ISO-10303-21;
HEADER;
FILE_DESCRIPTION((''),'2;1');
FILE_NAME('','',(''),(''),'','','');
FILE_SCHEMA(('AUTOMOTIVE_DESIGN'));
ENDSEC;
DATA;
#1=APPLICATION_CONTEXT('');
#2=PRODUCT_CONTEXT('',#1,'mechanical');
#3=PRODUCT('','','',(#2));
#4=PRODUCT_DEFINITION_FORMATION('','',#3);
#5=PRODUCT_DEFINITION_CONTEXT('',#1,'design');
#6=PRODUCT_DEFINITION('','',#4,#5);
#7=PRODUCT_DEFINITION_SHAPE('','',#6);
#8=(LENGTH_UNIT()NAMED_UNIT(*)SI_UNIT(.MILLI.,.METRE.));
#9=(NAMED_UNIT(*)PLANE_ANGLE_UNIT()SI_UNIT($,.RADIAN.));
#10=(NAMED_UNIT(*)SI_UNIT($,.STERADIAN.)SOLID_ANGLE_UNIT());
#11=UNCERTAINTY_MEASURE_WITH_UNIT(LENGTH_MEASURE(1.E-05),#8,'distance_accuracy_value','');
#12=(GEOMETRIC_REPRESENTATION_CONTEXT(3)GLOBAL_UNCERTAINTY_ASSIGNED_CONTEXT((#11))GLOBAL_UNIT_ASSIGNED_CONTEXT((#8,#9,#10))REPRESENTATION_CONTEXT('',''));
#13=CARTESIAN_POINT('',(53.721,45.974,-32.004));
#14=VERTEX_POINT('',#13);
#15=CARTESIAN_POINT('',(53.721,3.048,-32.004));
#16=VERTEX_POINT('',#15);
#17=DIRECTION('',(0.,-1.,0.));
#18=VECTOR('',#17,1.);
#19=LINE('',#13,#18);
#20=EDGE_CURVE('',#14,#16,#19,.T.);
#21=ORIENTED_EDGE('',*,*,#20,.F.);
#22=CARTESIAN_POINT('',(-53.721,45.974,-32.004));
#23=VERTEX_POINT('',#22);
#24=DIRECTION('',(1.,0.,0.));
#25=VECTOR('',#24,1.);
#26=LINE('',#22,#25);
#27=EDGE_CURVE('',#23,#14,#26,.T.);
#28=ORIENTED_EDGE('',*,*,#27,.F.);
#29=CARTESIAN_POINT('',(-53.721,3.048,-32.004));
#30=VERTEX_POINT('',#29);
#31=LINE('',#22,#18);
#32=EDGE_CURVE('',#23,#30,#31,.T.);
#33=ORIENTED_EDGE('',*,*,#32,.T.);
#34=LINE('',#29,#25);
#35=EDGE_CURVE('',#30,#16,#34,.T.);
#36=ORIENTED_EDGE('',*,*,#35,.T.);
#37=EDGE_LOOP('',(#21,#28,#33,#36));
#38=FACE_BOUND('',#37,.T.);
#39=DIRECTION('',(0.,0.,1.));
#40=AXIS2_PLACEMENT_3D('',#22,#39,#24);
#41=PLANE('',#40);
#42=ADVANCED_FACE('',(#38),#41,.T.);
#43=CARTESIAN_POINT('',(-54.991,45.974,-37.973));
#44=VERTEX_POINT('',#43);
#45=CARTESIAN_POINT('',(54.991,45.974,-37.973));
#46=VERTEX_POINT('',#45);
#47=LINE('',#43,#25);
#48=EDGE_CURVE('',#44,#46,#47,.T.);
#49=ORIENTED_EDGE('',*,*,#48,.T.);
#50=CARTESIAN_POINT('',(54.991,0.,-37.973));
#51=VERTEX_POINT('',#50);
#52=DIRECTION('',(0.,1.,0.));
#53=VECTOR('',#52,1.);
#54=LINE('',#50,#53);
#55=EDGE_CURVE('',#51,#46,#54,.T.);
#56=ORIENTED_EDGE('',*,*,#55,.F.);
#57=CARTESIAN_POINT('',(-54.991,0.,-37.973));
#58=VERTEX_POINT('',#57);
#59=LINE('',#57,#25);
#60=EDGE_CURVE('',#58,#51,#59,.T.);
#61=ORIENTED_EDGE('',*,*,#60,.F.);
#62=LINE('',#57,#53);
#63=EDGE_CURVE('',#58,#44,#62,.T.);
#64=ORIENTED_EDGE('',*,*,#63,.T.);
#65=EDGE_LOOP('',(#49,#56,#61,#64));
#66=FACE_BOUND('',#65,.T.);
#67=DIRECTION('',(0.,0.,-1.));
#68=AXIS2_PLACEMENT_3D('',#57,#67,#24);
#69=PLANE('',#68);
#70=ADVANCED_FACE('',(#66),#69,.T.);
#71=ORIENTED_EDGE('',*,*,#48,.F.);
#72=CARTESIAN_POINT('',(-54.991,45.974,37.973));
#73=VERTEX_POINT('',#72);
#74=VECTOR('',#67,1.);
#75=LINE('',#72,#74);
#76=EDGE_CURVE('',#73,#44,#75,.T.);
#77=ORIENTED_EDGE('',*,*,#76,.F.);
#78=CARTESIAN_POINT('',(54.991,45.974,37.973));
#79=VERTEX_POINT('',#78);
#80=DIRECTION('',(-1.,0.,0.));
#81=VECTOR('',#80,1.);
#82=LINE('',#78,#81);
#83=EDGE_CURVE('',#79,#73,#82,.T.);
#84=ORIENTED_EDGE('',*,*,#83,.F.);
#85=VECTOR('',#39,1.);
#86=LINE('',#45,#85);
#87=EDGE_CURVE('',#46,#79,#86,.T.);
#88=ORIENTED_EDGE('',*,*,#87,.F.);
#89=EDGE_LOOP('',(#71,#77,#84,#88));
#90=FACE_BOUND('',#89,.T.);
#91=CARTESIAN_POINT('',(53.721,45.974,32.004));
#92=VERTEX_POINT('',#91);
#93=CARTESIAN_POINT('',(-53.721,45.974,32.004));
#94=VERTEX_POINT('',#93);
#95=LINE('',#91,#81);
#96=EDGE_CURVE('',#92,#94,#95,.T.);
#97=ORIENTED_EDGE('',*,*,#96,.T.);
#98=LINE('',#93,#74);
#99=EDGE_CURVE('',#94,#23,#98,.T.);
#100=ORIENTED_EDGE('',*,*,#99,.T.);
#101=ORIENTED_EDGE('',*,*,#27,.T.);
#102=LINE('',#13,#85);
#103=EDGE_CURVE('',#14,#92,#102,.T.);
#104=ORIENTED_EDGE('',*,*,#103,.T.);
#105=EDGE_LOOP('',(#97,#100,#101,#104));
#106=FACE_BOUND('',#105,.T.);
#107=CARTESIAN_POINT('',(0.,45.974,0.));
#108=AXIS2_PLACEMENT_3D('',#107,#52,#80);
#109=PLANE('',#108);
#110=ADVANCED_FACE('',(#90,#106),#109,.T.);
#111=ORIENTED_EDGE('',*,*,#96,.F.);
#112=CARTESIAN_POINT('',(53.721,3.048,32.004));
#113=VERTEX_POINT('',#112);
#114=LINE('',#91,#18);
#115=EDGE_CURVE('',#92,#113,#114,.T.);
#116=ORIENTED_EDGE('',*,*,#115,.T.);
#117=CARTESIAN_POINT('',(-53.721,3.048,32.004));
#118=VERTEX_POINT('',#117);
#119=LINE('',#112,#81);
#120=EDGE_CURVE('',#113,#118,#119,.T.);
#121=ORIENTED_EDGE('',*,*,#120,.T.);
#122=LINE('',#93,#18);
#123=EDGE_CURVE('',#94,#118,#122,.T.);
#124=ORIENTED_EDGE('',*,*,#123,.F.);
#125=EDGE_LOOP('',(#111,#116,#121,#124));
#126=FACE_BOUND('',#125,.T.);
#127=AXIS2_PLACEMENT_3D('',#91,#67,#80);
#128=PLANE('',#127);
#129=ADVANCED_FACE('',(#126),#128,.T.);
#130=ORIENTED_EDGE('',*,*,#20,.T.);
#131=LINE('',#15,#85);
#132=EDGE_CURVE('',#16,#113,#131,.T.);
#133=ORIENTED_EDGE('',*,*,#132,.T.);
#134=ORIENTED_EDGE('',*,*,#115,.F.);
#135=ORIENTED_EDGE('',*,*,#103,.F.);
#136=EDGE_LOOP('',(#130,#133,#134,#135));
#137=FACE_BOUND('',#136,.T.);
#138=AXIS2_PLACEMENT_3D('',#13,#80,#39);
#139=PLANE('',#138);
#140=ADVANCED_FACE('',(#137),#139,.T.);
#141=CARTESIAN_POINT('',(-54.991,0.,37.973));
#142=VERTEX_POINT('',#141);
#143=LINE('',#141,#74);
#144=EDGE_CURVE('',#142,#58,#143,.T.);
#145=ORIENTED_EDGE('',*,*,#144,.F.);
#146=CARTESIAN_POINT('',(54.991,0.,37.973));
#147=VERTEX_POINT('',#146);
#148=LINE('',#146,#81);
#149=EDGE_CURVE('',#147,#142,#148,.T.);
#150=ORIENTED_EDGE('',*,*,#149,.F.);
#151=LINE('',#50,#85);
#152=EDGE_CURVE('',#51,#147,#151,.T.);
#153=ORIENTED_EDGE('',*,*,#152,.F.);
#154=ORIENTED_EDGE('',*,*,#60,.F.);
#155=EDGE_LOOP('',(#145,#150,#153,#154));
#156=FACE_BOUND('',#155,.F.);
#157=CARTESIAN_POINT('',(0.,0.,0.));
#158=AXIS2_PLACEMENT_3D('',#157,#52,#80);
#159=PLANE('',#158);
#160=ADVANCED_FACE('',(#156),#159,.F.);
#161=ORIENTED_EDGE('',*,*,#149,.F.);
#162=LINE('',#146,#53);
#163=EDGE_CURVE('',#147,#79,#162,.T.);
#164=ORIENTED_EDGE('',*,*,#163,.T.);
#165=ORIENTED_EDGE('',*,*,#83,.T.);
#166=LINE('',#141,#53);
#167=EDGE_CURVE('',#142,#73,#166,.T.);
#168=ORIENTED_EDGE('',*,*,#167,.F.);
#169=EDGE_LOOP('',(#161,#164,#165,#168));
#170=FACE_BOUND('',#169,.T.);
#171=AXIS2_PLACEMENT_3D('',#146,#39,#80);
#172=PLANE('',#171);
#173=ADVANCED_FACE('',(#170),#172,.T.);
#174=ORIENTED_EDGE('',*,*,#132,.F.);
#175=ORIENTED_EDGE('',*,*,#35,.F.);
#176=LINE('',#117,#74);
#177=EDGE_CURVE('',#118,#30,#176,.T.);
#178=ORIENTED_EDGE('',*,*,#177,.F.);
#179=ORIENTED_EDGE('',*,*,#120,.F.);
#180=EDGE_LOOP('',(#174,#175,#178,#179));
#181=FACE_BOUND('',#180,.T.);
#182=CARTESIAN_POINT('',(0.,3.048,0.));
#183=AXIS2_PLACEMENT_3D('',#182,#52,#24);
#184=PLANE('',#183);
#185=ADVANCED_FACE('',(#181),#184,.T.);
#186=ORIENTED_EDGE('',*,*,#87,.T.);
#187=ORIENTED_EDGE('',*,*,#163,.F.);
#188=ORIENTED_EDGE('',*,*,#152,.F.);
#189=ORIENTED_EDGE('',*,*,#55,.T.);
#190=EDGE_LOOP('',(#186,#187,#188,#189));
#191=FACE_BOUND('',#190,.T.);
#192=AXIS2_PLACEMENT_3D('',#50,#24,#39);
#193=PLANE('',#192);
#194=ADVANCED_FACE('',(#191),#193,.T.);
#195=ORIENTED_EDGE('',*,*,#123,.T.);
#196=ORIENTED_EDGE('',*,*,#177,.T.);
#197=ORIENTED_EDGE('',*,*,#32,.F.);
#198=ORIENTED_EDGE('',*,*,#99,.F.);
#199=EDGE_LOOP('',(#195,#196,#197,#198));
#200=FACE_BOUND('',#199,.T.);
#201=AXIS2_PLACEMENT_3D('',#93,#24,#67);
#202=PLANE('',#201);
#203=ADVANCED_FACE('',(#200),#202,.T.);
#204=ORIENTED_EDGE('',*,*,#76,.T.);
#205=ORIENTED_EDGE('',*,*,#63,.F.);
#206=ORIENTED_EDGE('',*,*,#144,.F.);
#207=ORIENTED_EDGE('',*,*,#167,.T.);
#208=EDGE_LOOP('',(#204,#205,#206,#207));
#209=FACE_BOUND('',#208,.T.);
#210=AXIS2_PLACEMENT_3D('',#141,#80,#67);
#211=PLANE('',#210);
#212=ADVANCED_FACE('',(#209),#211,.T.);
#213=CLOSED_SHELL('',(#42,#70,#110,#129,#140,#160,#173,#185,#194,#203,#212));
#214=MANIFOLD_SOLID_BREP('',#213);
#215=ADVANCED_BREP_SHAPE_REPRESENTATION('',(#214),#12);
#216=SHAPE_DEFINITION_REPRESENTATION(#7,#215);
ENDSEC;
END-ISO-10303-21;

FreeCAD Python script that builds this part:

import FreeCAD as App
import Part
import Sketcher
Q = App.Units.Quantity


def add_polygon(sketch, points):
    """Adds a closed chain of lines whose ends are joined by coincident constraints."""
    first, n = sketch.GeometryCount, len(points)
    for a, b in zip(points, points[1:] + points[:1]):
        sketch.addGeometry(Part.LineSegment(App.Vector(*a, 0), App.Vector(*b, 0)), False)
    for i in range(n):
        sketch.addConstraint(Sketcher.Constraint("Coincident", first + i, 2, first + (i + 1) % n, 1))

doc = App.newDocument("Part")
body = doc.addObject("PartDesign::Body", "Body")

sketch1 = body.newObject("Sketcher::SketchObject", "Sketch")
sketch1.AttachmentSupport = (doc.getObject("XZ_Plane"), [""])
sketch1.MapMode = "FlatFace"
add_polygon(sketch1, [(-55, 38), (55, 38), (55, -38), (-55, -38)])
sketch1.addConstraint(Sketcher.Constraint("Horizontal", 0))
sketch1.addConstraint(Sketcher.Constraint("Vertical", 1))
sketch1.addConstraint(Sketcher.Constraint("Horizontal", 2))
sketch1.addConstraint(Sketcher.Constraint("Vertical", 3))
sketch1.addConstraint(Sketcher.Constraint("Symmetric", 0, 2, 2, 2, -1, 1))
sketch1.addConstraint(Sketcher.Constraint("DistanceX", 0, 1, 0, 2, Q("4.33 in")))
sketch1.addConstraint(Sketcher.Constraint("DistanceY", 1, 2, 1, 1, Q("2.99 in")))
pad1 = body.newObject("PartDesign::Pad", "Pad")
pad1.Profile = sketch1
pad1.Length = Q("1.81 in")
pad1.Reversed = True

sketch2 = body.newObject("Sketcher::SketchObject", "Sketch001")
sketch2.AttachmentSupport = (doc.getObject("XZ_Plane"), [""])
sketch2.MapMode = "FlatFace"
sketch2.AttachmentOffset = App.Placement(App.Vector(0, 0, -1.81 * 25.4), App.Rotation())
add_polygon(sketch2, [(-54, 32), (54, 32), (54, -32), (-54, -32)])
sketch2.addConstraint(Sketcher.Constraint("Horizontal", 0))
sketch2.addConstraint(Sketcher.Constraint("Vertical", 1))
sketch2.addConstraint(Sketcher.Constraint("Horizontal", 2))
sketch2.addConstraint(Sketcher.Constraint("Vertical", 3))
sketch2.addConstraint(Sketcher.Constraint("Symmetric", 0, 2, 2, 2, -1, 1))
sketch2.addConstraint(Sketcher.Constraint("DistanceY", 1, 2, 1, 1, Q("2.52 in")))
sketch2.addConstraint(Sketcher.Constraint("DistanceX", 0, 1, 0, 2, Q("4.23 in")))
pocket1 = body.newObject("PartDesign::Pocket", "Pocket")
pocket1.Profile = sketch2
pocket1.Length = Q("1.69 in")
pocket1.Reversed = True

doc.recompute()
